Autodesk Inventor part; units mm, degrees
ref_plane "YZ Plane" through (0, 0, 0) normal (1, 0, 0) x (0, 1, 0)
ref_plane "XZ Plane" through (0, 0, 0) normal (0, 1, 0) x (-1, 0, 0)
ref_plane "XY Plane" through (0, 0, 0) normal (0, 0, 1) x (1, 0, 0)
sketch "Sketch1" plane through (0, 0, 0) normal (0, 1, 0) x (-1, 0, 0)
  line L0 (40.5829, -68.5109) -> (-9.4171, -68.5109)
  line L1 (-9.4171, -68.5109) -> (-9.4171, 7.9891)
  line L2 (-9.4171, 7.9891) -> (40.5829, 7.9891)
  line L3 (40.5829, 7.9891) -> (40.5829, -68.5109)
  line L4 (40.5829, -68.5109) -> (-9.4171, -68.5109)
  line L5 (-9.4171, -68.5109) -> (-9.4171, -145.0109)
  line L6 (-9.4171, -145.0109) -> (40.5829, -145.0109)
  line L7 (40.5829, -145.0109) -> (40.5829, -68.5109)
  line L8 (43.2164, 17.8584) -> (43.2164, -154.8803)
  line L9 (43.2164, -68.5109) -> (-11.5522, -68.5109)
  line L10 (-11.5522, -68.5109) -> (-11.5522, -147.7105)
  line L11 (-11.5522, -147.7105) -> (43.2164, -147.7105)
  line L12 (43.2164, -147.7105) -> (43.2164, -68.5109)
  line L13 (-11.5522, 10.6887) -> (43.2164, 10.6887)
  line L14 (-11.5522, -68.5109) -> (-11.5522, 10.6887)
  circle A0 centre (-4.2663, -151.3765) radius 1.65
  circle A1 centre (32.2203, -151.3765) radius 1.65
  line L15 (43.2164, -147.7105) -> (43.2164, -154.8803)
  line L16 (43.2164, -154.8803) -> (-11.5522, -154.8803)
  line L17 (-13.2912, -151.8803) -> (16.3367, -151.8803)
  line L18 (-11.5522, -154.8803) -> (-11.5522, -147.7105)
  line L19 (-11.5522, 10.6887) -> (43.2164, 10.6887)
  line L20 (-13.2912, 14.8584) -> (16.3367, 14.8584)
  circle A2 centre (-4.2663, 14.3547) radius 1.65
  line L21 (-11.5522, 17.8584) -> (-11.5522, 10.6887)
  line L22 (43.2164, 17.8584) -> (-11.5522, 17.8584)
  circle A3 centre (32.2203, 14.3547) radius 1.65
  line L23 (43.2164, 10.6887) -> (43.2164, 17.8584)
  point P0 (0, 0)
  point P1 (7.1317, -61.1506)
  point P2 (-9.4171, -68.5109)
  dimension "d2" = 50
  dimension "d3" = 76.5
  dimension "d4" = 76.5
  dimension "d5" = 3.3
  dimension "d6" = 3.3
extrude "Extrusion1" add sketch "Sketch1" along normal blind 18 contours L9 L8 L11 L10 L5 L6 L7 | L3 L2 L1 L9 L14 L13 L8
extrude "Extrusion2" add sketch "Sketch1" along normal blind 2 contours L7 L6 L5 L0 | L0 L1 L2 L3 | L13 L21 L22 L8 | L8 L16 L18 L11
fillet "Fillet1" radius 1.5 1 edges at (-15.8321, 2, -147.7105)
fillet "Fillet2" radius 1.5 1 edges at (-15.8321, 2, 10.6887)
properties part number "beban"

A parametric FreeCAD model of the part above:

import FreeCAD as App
import Part
import Sketcher
from FreeCAD import Vector


def edges_at(feature, points):
    """Names of the edges that pass closest to the given points."""
    edges = feature.Shape.Edges
    near = lambda p: min(range(len(edges)), key=lambda i: edges[i].distToShape(Part.Vertex(*p))[0])
    return sorted({f"Edge{near(p) + 1}" for p in points})


def add_polygon(sketch, points):
    """Adds a closed chain of lines whose ends are joined by coincident constraints."""
    first, n = sketch.GeometryCount, len(points)
    for a, b in zip(points, points[1:] + points[:1]):
        sketch.addGeometry(Part.LineSegment(App.Vector(*a, 0), App.Vector(*b, 0)), False)
    for i in range(n):
        sketch.addConstraint(Sketcher.Constraint("Coincident", first + i, 2, first + (i + 1) % n, 1))

doc = App.newDocument("Part")
body = doc.addObject("PartDesign::Body", "Body")

sketch1 = body.newObject("Sketcher::SketchObject", "Sketch")
sketch1.AttachmentSupport = (doc.getObject("XZ_Plane"), [""])
sketch1.MapMode = "FlatFace"
add_polygon(sketch1, [(-43, -148), (-43, 11), (12, 11), (12, -148)])
add_polygon(sketch1, [(9, -145), (9, 8), (-41, 8), (-41, -145)])
sketch1.addConstraint([
    Sketcher.Constraint("Vertical", 0),
    Sketcher.Constraint("Horizontal", 1),
    Sketcher.Constraint("Vertical", 2),
    Sketcher.Constraint("Horizontal", 3),
    Sketcher.Constraint("Vertical", 4),
    Sketcher.Constraint("Horizontal", 5),
    Sketcher.Constraint("Vertical", 6),
    Sketcher.Constraint("Horizontal", 7),
    Sketcher.Constraint("DistanceX", 5, 2, 5, 1, 50.0),
    Sketcher.Constraint("DistanceY", 4, 1, 4, 2, 153.0),
    Sketcher.Constraint("DistanceX", 1, 1, 1, 2, 54.7686),
    Sketcher.Constraint("DistanceY", 0, 1, 0, 2, 158.3992),
    Sketcher.Constraint("DistanceX", -1, 1, 4, 2, 9.417),
    Sketcher.Constraint("DistanceY", -1, 1, 4, 2, 7.989),
    Sketcher.Constraint("DistanceX", 4, 2, 1, 2, 2.135),
    Sketcher.Constraint("DistanceY", -1, 1, 0, 2, 10.6887),
])
pad1 = body.newObject("PartDesign::Pad", "Pad")
pad1.Profile = sketch1
pad1.Length = 18
pad1.Reversed = True

sketch2 = body.newObject("Sketcher::SketchObject", "Sketch001")
sketch2.AttachmentSupport = (doc.getObject("XZ_Plane"), [""])
sketch2.MapMode = "FlatFace"
add_polygon(sketch2, [(-40.6, -145), (-40.6, 8), (9.4, 8), (9.4, -145)])
add_polygon(sketch2, [(11.6, 10.7), (-43.2, 10.7), (-43.2, 17.9), (11.6, 17.9), (11.6, 14.9)])
sketch2.addGeometry(Part.Circle(Vector(4.3, 14.4, 0), Vector(0, 0, 1), 1.6), False)
sketch2.addGeometry(Part.Circle(Vector(-32.2, 14.4, 0), Vector(0, 0, 1), 1.6), False)
add_polygon(sketch2, [(-43.2, -154.9), (-43.2, -147.7), (11.6, -147.7), (11.6, -151.9), (11.6, -154.9)])
sketch2.addGeometry(Part.Circle(Vector(4.3, -151.4, 0), Vector(0, 0, 1), 1.6), False)
sketch2.addGeometry(Part.Circle(Vector(-32.2, -151.4, 0), Vector(0, 0, 1), 1.6), False)
sketch2.addConstraint([
    Sketcher.Constraint("Vertical", 0),
    Sketcher.Constraint("Horizontal", 1),
    Sketcher.Constraint("Vertical", 2),
    Sketcher.Constraint("Horizontal", 3),
    Sketcher.Constraint("Horizontal", 4),
    Sketcher.Constraint("Vertical", 5),
    Sketcher.Constraint("Horizontal", 6),
    Sketcher.Constraint("Vertical", 7),
    Sketcher.Constraint("Vertical", 8),
    Sketcher.Constraint("Vertical", 11),
    Sketcher.Constraint("Horizontal", 12),
    Sketcher.Constraint("Vertical", 13),
    Sketcher.Constraint("Vertical", 14),
    Sketcher.Constraint("Horizontal", 15),
    Sketcher.Constraint("Equal", 9, 10),
    Sketcher.Constraint("Equal", 10, 16),
    Sketcher.Constraint("Equal", 16, 17),
    Sketcher.Constraint("Horizontal", 9, 3, 10, 3),
    Sketcher.Constraint("Horizontal", 16, 3, 17, 3),
    Sketcher.Constraint("Vertical", 9, 3, 16, 3),
    Sketcher.Constraint("Vertical", 10, 3, 17, 3),
    Sketcher.Constraint("Vertical", 5, 2, 11, 2),
    Sketcher.Constraint("Vertical", 8, 2, 12, 2),
    Sketcher.Constraint("Equal", 5, 11),
    Sketcher.Constraint("Equal", 8, 13),
    Sketcher.Constraint("Diameter", 9, 3.3),
    Sketcher.Constraint("DistanceX", 1, 1, 1, 2, 50.0),
    Sketcher.Constraint("DistanceY", 0, 1, 0, 2, 153.0),
    Sketcher.Constraint("DistanceY", 7, 2, 7, 1, 3.0),
    Sketcher.Constraint("DistanceX", 4, 2, 4, 1, 54.7686),
    Sketcher.Constraint("DistanceY", 5, 1, 5, 2, 7.1697),
    Sketcher.Constraint("DistanceX", 0, 2, -1, 1, 40.583),
    Sketcher.Constraint("DistanceY", -1, 1, 0, 2, 7.989),
    Sketcher.Constraint("DistanceX", 4, 2, 10, 3, 10.996),
    Sketcher.Constraint("DistanceY", 4, 2, 10, 3, 3.666),
    Sketcher.Constraint("DistanceX", 9, 3, 6, 2, 7.286),
    Sketcher.Constraint("DistanceX", 1, 2, 6, 2, 2.135),
    Sketcher.Constraint("DistanceY", 17, 3, 11, 2, 3.666),
    Sketcher.Constraint("DistanceY", -1, 1, 9, 3, 14.3547),
    Sketcher.Constraint("DistanceY", 16, 3, -1, 1, 151.3765),
])
pad2 = body.newObject("PartDesign::Pad", "Pad001")
pad2.Profile = sketch2
pad2.Length = 2
pad2.Reversed = True
doc.recompute()

fillet = body.newObject("PartDesign::Fillet", "Fillet")
fillet.Base = (pad2, edges_at(pad2, [(-15.832, 2, -147.71)]))
fillet.Radius = 1.5
doc.recompute()

fillet2 = body.newObject("PartDesign::Fillet", "Fillet001")
fillet2.Base = (fillet, edges_at(fillet, [(-15.832, 2, 10.689)]))
fillet2.Radius = 1.5

doc.recompute()
